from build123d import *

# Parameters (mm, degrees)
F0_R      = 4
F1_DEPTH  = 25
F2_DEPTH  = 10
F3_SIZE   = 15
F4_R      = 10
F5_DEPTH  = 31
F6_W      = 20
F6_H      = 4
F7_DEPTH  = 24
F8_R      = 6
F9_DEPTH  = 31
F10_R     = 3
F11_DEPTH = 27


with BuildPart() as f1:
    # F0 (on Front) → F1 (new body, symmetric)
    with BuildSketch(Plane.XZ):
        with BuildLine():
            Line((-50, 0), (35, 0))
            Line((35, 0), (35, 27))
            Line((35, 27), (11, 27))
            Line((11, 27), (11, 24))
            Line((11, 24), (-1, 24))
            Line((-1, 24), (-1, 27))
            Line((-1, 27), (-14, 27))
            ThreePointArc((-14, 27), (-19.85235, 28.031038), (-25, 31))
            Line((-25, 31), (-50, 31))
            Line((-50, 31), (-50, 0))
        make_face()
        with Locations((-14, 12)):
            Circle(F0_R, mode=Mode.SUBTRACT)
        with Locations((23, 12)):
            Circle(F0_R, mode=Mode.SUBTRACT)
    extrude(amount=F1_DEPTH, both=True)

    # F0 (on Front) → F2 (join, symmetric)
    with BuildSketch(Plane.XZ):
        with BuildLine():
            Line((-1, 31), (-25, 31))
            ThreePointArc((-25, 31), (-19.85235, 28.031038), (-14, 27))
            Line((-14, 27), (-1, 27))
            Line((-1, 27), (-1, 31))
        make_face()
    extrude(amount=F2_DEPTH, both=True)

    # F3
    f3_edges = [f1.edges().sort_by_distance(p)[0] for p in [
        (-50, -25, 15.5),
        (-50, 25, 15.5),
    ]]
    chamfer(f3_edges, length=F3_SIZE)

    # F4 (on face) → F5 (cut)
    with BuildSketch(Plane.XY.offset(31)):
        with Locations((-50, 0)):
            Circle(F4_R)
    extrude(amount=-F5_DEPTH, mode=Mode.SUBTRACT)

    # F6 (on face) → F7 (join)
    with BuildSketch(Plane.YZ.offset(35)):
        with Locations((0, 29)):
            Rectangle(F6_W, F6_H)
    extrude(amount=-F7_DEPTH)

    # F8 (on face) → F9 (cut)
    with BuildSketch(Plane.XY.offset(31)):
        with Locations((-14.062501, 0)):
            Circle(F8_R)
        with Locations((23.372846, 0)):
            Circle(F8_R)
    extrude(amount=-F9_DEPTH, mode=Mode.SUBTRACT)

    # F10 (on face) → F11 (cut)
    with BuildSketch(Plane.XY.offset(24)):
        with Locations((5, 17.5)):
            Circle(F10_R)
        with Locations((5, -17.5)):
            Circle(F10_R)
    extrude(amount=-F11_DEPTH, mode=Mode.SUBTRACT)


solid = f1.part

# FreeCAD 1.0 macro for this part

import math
import FreeCAD as App
import Part
import Sketcher
from FreeCAD import Vector


def edges_at(feature, points):
    """Names of the edges that pass closest to the given points."""
    edges = feature.Shape.Edges
    near = lambda p: min(range(len(edges)), key=lambda i: edges[i].distToShape(Part.Vertex(*p))[0])
    return sorted({f"Edge{near(p) + 1}" for p in points})


def add_polygon(sketch, points):
    """Adds a closed chain of lines whose ends are joined by coincident constraints."""
    first, n = sketch.GeometryCount, len(points)
    for a, b in zip(points, points[1:] + points[:1]):
        sketch.addGeometry(Part.LineSegment(App.Vector(*a, 0), App.Vector(*b, 0)), False)
    for i in range(n):
        sketch.addConstraint(Sketcher.Constraint("Coincident", first + i, 2, first + (i + 1) % n, 1))

doc = App.newDocument("Part")
body = doc.addObject("PartDesign::Body", "Body")

# Sketch on XZ plane
sketch1 = body.newObject("Sketcher::SketchObject", "Sketch")
sketch1.AttachmentSupport = (doc.getObject("XZ_Plane"), [""])
sketch1.MapMode = "FlatFace"
sketch1.addGeometry([
    Part.LineSegment(Vector(-50, 0, 0), Vector(35, 0, 0)),  # 0
    Part.LineSegment(Vector(35, 0, 0), Vector(35, 27, 0)),  # 1
    Part.LineSegment(Vector(35, 27, 0), Vector(11, 27, 0)),  # 2
    Part.LineSegment(Vector(11, 27, 0), Vector(11, 24, 0)),  # 3
    Part.LineSegment(Vector(11, 24, 0), Vector(-1, 24, 0)),  # 4
    Part.LineSegment(Vector(-1, 24, 0), Vector(-1, 27, 0)),  # 5
    Part.LineSegment(Vector(-1, 27, 0), Vector(-14, 27, 0)),  # 6
    Part.ArcOfCircle(Part.Circle(Vector(-13.999998, 44.125005, 0), Vector(0, 0, 1), 17.125005), math.radians(-129.966207), math.radians(-90.000006)),  # 7
    Part.LineSegment(Vector(-25, 31, 0), Vector(-50, 31, 0)),  # 8
    Part.LineSegment(Vector(-50, 31, 0), Vector(-50, 0, 0)),  # 9
    Part.Circle(Vector(-14, 12, 0), Vector(0, 0, 1), 4),  # 10
    Part.Circle(Vector(23, 12, 0), Vector(0, 0, 1), 4),  # 11
], False)
sketch1.addConstraint([
    Sketcher.Constraint("Coincident", 0, 2, 1, 1),
    Sketcher.Constraint("Coincident", 1, 2, 2, 1),
    Sketcher.Constraint("Coincident", 2, 2, 3, 1),
    Sketcher.Constraint("Coincident", 3, 2, 4, 1),
    Sketcher.Constraint("Coincident", 4, 2, 5, 1),
    Sketcher.Constraint("Coincident", 5, 2, 6, 1),
    Sketcher.Constraint("Tangent", 6, 2, 7, 2),
    Sketcher.Constraint("Coincident", 7, 1, 8, 1),
    Sketcher.Constraint("Coincident", 8, 2, 9, 1),
    Sketcher.Constraint("Coincident", 9, 2, 0, 1),
    Sketcher.Constraint("Horizontal", 0),
    Sketcher.Constraint("Vertical", 1),
    Sketcher.Constraint("Horizontal", 2),
    Sketcher.Constraint("Vertical", 3),
    Sketcher.Constraint("Horizontal", 4),
    Sketcher.Constraint("Vertical", 5),
    Sketcher.Constraint("Horizontal", 6),
    Sketcher.Constraint("Horizontal", 8),
    Sketcher.Constraint("Vertical", 9),
    Sketcher.Constraint("Equal", 10, 11),
    Sketcher.Constraint("PointOnObject", 0, 2, -1),
    Sketcher.Constraint("Horizontal", 10, 3, 11, 3),
    Sketcher.Constraint("Horizontal", 2, 2, 5, 2),
    Sketcher.Constraint("Vertical", 7, 3, 10, 3),
    Sketcher.Constraint("Diameter", 10, 8.0),
    Sketcher.Constraint("DistanceX", 0, 1, 0, 2, 85.0),
    Sketcher.Constraint("DistanceX", 2, 2, 2, 1, 24.0),
    Sketcher.Constraint("DistanceX", 4, 2, 4, 1, 12.0),
    Sketcher.Constraint("DistanceX", 6, 2, 6, 1, 13.0),
    Sketcher.Constraint("DistanceX", 8, 2, 8, 1, 25.0),
    Sketcher.Constraint("DistanceY", 1, 1, 1, 2, 27.0),
    Sketcher.Constraint("DistanceY", 3, 2, 3, 1, 3.0),
    Sketcher.Constraint("DistanceY", 9, 2, 9, 1, 31.0),
    Sketcher.Constraint("DistanceX", 7, 3, -1, 1, 13.999998),
    Sketcher.Constraint("DistanceY", -1, 1, 10, 3, 12.0),
    Sketcher.Constraint("DistanceX", -1, 1, 11, 3, 23.0),
])
pad1 = body.newObject("PartDesign::Pad", "Pad")
pad1.Profile = sketch1
pad1.Length = 50
pad1.Midplane = True

# Sketch on XZ plane
sketch2 = body.newObject("Sketcher::SketchObject", "Sketch001")
sketch2.AttachmentSupport = (doc.getObject("XZ_Plane"), [""])
sketch2.MapMode = "FlatFace"
sketch2.addGeometry([
    Part.LineSegment(Vector(-1, 31, 0), Vector(-25, 31, 0)),
    Part.ArcOfCircle(Part.Circle(Vector(-13.999998, 44.125005, 0), Vector(0, 0, 1), 17.125005), math.radians(-129.966207), math.radians(-90.000006)),
    Part.LineSegment(Vector(-14, 27, 0), Vector(-1, 27, 0)),
    Part.LineSegment(Vector(-1, 27, 0), Vector(-1, 31, 0)),
], False)
sketch2.addConstraint([
    Sketcher.Constraint("Coincident", 0, 2, 1, 1),
    Sketcher.Constraint("Tangent", 1, 2, 2, 1),
    Sketcher.Constraint("Coincident", 2, 2, 3, 1),
    Sketcher.Constraint("Coincident", 3, 2, 0, 1),
    Sketcher.Constraint("Horizontal", 0),
    Sketcher.Constraint("Horizontal", 2),
    Sketcher.Constraint("Vertical", 3),
    Sketcher.Constraint("DistanceX", 0, 2, 0, 1, 24.0),
    Sketcher.Constraint("DistanceX", 2, 1, 2, 2, 13.0),
    Sketcher.Constraint("DistanceY", 3, 1, 3, 2, 4.0),
    Sketcher.Constraint("DistanceX", 1, 3, -1, 1, 13.999998),
    Sketcher.Constraint("DistanceY", -1, 1, 0, 2, 31.0),
])
pad2 = body.newObject("PartDesign::Pad", "Pad001")
pad2.Profile = sketch2
pad2.Length = 20
pad2.Midplane = True
doc.recompute()

chamfer = body.newObject("PartDesign::Chamfer", "Chamfer")
chamfer.Base = (pad2, edges_at(pad2, [(-50, -25, 15.5), (-50, 25, 15.5)]))
chamfer.Size = 15

# Sketch on XY plane
sketch3 = body.newObject("Sketcher::SketchObject", "Sketch002")
sketch3.AttachmentSupport = (doc.getObject("XY_Plane"), [""])
sketch3.MapMode = "FlatFace"
sketch3.AttachmentOffset = App.Placement(Vector(0, 0, 31), App.Rotation())
sketch3.addGeometry(Part.Circle(Vector(-50, 0, 0), Vector(0, 0, 1), 10), False)
sketch3.addConstraint([
    Sketcher.Constraint("PointOnObject", 0, 3, -1),
    Sketcher.Constraint("Diameter", 0, 20.0),
    Sketcher.Constraint("DistanceX", 0, 3, -1, 1, 50.0),
])
pocket1 = body.newObject("PartDesign::Pocket", "Pocket")
pocket1.Profile = sketch3
pocket1.Length = 31

# Sketch on YZ plane
sketch4 = body.newObject("Sketcher::SketchObject", "Sketch003")
sketch4.AttachmentSupport = (doc.getObject("YZ_Plane"), [""])
sketch4.MapMode = "FlatFace"
sketch4.AttachmentOffset = App.Placement(Vector(0, 0, 35), App.Rotation())
add_polygon(sketch4, [(-10, 31), (-10, 27), (10, 27), (10, 31)])  # lines 0-3
sketch4.addConstraint([
    Sketcher.Constraint("Vertical", 0),
    Sketcher.Constraint("Horizontal", 1),
    Sketcher.Constraint("Vertical", 2),
    Sketcher.Constraint("Horizontal", 3),
    Sketcher.Constraint("DistanceX", 1, 1, 1, 2, 20.0),
    Sketcher.Constraint("DistanceY", 0, 2, 0, 1, 4.0),
    Sketcher.Constraint("DistanceX", 0, 2, -1, 1, 10.0),
    Sketcher.Constraint("DistanceY", -1, 1, 0, 2, 27.0),
])
pad3 = body.newObject("PartDesign::Pad", "Pad002")
pad3.Profile = sketch4
pad3.Length = 24
pad3.Reversed = True

# Sketch on XY plane
sketch5 = body.newObject("Sketcher::SketchObject", "Sketch004")
sketch5.AttachmentSupport = (doc.getObject("XY_Plane"), [""])
sketch5.MapMode = "FlatFace"
sketch5.AttachmentOffset = App.Placement(Vector(0, 0, 31), App.Rotation())
sketch5.addGeometry([
    Part.Circle(Vector(-14.062501, 0, 0), Vector(0, 0, 1), 6),
    Part.Circle(Vector(23.372846, 0, 0), Vector(0, 0, 1), 6),
], False)
sketch5.addConstraint([
    Sketcher.Constraint("Equal", 0, 1),
    Sketcher.Constraint("PointOnObject", 0, 3, -1),
    Sketcher.Constraint("PointOnObject", 1, 3, -1),
    Sketcher.Constraint("Diameter", 0, 12.0),
    Sketcher.Constraint("DistanceX", 0, 3, -1, 1, 14.062501),
    Sketcher.Constraint("DistanceX", -1, 1, 1, 3, 23.372846),
])
pocket2 = body.newObject("PartDesign::Pocket", "Pocket001")
pocket2.Profile = sketch5
pocket2.Length = 31

# Sketch on XY plane
sketch6 = body.newObject("Sketcher::SketchObject", "Sketch005")
sketch6.AttachmentSupport = (doc.getObject("XY_Plane"), [""])
sketch6.MapMode = "FlatFace"
sketch6.AttachmentOffset = App.Placement(Vector(0, 0, 24), App.Rotation())
sketch6.addGeometry([
    Part.Circle(Vector(5, 17.5, 0), Vector(0, 0, 1), 3),
    Part.Circle(Vector(5, -17.5, 0), Vector(0, 0, 1), 3),
], False)
sketch6.addConstraint([
    Sketcher.Constraint("Equal", 0, 1),
    Sketcher.Constraint("Symmetric", 0, 3, 1, 3, -1),
    Sketcher.Constraint("Diameter", 0, 6.0),
    Sketcher.Constraint("DistanceX", -1, 1, 0, 3, 5.0),
    Sketcher.Constraint("DistanceY", 1, 3, 0, 3, 35.0),
])
pocket3 = body.newObject("PartDesign::Pocket", "Pocket002")
pocket3.Profile = sketch6
pocket3.Length = 27

doc.recompute()
